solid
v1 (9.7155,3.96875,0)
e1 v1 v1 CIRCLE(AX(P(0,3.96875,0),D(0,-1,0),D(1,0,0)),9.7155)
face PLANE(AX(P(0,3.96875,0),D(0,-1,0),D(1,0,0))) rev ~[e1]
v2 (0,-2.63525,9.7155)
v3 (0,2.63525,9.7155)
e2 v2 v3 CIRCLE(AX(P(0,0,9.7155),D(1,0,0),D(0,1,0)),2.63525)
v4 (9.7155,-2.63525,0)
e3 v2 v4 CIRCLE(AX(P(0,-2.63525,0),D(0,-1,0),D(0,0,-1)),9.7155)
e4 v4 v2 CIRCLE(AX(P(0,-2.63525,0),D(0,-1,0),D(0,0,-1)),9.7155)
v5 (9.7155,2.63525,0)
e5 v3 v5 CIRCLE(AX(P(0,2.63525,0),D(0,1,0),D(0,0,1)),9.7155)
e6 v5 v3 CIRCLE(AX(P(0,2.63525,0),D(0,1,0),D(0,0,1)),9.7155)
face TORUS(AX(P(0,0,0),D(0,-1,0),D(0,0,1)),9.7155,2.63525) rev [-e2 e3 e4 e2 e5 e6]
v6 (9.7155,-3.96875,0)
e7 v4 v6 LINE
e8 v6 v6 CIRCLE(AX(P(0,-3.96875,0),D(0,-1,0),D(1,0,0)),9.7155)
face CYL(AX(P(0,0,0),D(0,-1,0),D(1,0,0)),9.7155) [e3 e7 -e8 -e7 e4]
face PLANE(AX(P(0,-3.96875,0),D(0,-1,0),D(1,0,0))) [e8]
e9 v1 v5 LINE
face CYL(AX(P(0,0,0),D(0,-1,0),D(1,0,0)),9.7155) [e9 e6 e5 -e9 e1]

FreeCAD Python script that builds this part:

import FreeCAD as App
import Part
import Sketcher
from FreeCAD import Vector
Q = App.Units.Quantity

doc = App.newDocument("Part")
params = doc.addObject("Spreadsheet::Sheet", "Params")
for row, (alias, value) in enumerate([
    ("sketch1_diameter", "0.765 in"),
    ("pad1_length", "0.3125 in"),
    ("groove_angle", "360 deg"),
], start=1):
    params.set(f"A{row}", alias)
    params.set(f"B{row}", "=" + value)
    params.setAlias(f"B{row}", alias)

body = doc.addObject("PartDesign::Body", "Body")

sketch1 = body.newObject("Sketcher::SketchObject", "Sketch")
sketch1.AttachmentSupport = (doc.getObject("XZ_Plane"), [""])
sketch1.MapMode = "FlatFace"
sketch1.addGeometry(Part.Circle(Vector(0, 0, 0), Vector(0, 0, 1), 10), False)
sketch1.addConstraint([
    Sketcher.Constraint("Coincident", 0, 3, -1, 1),
    Sketcher.Constraint("Diameter", 0, Q("0.765 in")),
])
sketch1.setExpression("Constraints[1]", "Params.sketch1_diameter")
pad1 = body.newObject("PartDesign::Pad", "Pad")
pad1.Profile = sketch1
pad1.setExpression("Length", "Params.pad1_length")
pad1.Midplane = True

sketch2 = body.newObject("Sketcher::SketchObject", "Sketch001")
sketch2.AttachmentSupport = (doc.getObject("YZ_Plane"), [""])
sketch2.MapMode = "FlatFace"
sketch2.addGeometry(Part.Circle(Vector(0, 9.7, 0), Vector(0, 0, 1), 2.6), False)
sketch2.addConstraint([
    Sketcher.Constraint("PointOnObject", 0, 3, -2),
    Sketcher.Constraint("Diameter", 0, Q("0.2075 in")),
    Sketcher.Constraint("DistanceY", -1, 1, 0, 3, Q("0.3825 in")),
])
groove = body.newObject("PartDesign::Groove", "Groove")
groove.Profile = sketch2
groove.ReferenceAxis = (sketch2, ["H_Axis"])
groove.setExpression("Angle", "Params.groove_angle")

doc.recompute()
